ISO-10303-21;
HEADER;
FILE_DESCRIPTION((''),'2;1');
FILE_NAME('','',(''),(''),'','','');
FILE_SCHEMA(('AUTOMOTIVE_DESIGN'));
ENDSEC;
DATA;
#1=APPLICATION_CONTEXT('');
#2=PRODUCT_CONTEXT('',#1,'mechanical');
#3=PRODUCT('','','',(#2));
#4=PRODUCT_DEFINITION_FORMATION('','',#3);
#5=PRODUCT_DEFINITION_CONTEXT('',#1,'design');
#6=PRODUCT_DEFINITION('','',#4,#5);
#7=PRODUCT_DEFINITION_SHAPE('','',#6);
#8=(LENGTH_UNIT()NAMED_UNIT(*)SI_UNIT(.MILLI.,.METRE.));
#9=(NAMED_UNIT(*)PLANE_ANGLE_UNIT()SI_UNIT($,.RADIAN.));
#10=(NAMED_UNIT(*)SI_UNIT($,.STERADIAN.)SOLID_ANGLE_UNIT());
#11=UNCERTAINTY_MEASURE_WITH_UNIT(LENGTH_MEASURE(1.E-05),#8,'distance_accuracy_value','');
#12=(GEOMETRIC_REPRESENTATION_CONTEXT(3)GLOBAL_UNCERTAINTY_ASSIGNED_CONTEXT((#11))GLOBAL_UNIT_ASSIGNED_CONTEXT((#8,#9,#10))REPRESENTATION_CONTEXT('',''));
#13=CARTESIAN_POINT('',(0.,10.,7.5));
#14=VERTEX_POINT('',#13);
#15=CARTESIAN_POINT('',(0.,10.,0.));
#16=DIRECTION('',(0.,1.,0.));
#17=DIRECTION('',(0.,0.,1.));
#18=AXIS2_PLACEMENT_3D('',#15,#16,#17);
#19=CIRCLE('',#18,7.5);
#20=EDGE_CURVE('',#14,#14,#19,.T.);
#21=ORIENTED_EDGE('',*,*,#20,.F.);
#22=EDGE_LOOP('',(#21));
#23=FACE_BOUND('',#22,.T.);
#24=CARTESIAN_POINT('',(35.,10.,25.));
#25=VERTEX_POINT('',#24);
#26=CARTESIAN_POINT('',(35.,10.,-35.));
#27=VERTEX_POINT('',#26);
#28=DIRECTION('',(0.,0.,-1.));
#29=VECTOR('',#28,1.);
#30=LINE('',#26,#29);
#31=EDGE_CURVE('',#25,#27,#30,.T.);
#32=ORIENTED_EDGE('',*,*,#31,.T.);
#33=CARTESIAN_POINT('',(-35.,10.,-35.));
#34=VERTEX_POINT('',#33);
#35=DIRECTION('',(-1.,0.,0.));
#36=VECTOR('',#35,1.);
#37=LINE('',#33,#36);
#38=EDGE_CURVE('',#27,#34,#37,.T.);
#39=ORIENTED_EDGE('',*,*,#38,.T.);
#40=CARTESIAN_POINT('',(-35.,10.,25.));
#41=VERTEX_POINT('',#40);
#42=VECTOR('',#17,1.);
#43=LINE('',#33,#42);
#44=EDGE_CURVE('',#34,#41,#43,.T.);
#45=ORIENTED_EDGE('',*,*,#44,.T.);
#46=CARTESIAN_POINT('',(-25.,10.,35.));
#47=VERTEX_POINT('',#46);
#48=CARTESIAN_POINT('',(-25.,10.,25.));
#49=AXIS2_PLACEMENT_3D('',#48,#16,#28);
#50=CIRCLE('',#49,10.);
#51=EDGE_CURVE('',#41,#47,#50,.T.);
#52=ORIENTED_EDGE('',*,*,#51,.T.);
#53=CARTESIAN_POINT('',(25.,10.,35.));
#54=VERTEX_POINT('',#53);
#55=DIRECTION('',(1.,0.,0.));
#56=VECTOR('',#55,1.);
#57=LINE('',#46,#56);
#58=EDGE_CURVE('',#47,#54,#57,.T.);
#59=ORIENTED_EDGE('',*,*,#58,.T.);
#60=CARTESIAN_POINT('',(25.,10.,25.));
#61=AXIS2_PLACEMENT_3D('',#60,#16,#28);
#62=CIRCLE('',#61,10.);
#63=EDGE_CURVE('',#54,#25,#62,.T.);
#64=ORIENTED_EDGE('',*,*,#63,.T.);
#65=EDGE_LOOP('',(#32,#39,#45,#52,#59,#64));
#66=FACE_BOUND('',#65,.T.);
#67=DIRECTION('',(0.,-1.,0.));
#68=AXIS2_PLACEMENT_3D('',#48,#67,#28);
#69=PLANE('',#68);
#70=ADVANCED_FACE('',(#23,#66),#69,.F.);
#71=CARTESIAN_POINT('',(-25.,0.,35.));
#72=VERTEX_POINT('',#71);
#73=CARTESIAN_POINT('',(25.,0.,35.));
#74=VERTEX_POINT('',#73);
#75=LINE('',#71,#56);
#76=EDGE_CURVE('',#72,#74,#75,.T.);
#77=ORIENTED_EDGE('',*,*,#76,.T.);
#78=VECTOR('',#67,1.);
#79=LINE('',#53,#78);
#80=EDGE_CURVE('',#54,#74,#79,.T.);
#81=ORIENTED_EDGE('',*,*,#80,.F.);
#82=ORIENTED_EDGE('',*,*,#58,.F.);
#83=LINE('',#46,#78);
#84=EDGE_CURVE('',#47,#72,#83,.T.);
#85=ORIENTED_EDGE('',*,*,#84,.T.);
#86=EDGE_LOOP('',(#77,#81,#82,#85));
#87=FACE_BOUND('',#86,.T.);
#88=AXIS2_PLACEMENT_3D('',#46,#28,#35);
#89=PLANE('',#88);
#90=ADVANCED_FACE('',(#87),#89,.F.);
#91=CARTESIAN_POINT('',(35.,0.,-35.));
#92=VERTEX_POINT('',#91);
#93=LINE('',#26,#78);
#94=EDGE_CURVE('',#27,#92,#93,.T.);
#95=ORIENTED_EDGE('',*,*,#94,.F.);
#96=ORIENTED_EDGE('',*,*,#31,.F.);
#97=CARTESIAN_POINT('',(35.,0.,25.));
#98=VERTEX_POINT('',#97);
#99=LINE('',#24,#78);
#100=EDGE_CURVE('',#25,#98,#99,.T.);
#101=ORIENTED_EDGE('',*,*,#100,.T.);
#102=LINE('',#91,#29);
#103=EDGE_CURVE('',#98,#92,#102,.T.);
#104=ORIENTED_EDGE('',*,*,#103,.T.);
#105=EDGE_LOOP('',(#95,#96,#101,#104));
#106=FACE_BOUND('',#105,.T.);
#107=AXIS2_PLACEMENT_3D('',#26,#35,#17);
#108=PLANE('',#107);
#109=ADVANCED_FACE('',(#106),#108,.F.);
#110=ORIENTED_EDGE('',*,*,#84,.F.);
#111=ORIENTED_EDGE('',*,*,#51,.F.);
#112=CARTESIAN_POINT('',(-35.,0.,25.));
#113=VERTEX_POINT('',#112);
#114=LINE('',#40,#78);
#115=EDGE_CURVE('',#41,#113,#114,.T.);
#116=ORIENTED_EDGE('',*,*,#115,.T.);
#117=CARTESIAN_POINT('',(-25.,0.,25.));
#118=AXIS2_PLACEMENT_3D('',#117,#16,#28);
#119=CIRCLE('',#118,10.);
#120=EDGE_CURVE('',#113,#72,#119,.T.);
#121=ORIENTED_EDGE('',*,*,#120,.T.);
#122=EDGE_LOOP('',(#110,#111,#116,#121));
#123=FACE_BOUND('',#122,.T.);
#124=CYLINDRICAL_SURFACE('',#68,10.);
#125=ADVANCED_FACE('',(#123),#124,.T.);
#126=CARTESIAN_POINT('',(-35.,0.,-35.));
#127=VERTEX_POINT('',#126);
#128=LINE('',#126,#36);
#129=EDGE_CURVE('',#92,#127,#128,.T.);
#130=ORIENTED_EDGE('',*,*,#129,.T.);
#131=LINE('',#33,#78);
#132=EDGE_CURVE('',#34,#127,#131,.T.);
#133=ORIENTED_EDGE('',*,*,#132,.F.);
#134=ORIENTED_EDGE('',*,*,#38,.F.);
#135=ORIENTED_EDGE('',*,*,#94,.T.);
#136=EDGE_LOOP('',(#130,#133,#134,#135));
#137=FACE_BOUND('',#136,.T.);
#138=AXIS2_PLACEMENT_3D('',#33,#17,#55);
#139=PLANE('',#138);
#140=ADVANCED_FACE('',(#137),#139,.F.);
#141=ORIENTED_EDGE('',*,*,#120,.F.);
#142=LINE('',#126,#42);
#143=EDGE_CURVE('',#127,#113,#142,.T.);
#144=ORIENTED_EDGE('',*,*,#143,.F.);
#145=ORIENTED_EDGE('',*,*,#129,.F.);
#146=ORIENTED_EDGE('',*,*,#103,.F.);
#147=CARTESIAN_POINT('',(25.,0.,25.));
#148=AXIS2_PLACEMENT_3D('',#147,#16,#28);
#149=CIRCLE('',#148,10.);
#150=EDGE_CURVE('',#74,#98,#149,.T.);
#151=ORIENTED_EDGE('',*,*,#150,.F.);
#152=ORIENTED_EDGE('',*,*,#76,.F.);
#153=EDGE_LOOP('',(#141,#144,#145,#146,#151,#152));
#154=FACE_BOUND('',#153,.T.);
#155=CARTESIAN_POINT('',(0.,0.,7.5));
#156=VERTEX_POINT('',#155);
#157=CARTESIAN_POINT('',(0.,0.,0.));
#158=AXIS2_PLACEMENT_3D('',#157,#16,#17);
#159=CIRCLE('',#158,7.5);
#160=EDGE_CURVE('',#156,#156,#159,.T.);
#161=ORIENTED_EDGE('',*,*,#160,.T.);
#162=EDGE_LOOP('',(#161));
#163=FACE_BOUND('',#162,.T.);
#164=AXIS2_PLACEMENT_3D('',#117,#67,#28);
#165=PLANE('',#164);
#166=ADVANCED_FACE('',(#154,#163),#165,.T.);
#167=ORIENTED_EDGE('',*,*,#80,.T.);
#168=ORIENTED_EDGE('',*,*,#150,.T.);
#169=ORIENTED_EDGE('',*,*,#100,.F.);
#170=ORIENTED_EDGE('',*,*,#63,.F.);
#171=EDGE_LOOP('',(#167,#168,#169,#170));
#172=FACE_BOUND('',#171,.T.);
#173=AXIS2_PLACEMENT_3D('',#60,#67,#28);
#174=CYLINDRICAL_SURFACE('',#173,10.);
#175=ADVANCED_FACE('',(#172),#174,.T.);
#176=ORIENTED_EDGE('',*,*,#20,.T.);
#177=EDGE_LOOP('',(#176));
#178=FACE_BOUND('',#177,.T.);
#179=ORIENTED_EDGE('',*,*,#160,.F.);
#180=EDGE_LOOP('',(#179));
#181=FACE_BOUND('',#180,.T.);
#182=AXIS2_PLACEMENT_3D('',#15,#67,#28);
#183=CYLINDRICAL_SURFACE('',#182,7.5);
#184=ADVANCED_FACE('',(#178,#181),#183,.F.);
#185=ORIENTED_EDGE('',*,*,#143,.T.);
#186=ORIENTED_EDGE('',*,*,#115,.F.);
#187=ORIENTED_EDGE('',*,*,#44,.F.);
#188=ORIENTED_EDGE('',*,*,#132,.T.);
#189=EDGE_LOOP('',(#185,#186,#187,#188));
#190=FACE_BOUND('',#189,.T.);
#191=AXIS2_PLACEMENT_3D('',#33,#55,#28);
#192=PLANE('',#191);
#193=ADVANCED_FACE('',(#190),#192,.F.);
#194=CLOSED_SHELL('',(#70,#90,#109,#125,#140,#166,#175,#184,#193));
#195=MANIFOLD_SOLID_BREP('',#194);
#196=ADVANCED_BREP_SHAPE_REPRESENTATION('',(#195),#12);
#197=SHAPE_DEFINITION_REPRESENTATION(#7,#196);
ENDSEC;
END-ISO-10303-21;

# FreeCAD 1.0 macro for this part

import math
import FreeCAD as App
import Part
import Sketcher

V = App.Vector

doc = App.newDocument("Part")
body = doc.addObject("PartDesign::Body", "Body")

sketch1 = body.newObject("Sketcher::SketchObject", "Sketch")
sketch1.AttachmentSupport = (doc.getObject("XZ_Plane"), [""])
sketch1.MapMode = "FlatFace"
sketch1.addGeometry([
    Part.LineSegment(V(35, -35, 0), V(-35, -35, 0)),
    Part.LineSegment(V(-35, -35, 0), V(-35, 25, 0)),
    Part.ArcOfCircle(Part.Circle(V(-25, 25, 0), V(0, 0, 1), 10), math.radians(90), math.radians(180)),
    Part.LineSegment(V(-25, 35, 0), V(25, 35, 0)),
    Part.ArcOfCircle(Part.Circle(V(25, 25, 0), V(0, 0, 1), 10), math.radians(0), math.radians(90)),
    Part.LineSegment(V(35, 25, 0), V(35, -35, 0)),
    Part.Circle(V(0, 0, 0), V(0, 0, 1), 8),
], False)
sketch1.addConstraint([
    Sketcher.Constraint("Coincident", 0, 2, 1, 1),
    Sketcher.Constraint("Tangent", 1, 2, 2, 2),
    Sketcher.Constraint("Tangent", 2, 1, 3, 1),
    Sketcher.Constraint("Tangent", 3, 2, 4, 2),
    Sketcher.Constraint("Tangent", 4, 1, 5, 1),
    Sketcher.Constraint("Coincident", 5, 2, 0, 1),
    Sketcher.Constraint("Horizontal", 0),
    Sketcher.Constraint("Vertical", 1),
    Sketcher.Constraint("Horizontal", 3),
    Sketcher.Constraint("Vertical", 5),
    Sketcher.Constraint("Coincident", 6, 3, -1, 1),
    Sketcher.Constraint("Equal", 2, 4),
    Sketcher.Constraint("Diameter", 6, 15.0),
    Sketcher.Constraint("Radius", 2, 10.0),
    Sketcher.Constraint("DistanceX", 0, 2, 0, 1, 70.0),
    Sketcher.Constraint("DistanceY", 1, 1, 1, 2, 60.0),
    Sketcher.Constraint("DistanceX", 2, 3, -1, 1, 25.0),
    Sketcher.Constraint("DistanceY", -1, 1, 2, 3, 25.0),
])
pad1 = body.newObject("PartDesign::Pad", "Pad")
pad1.Profile = sketch1
pad1.Length = 10
pad1.Reversed = True

doc.recompute()
